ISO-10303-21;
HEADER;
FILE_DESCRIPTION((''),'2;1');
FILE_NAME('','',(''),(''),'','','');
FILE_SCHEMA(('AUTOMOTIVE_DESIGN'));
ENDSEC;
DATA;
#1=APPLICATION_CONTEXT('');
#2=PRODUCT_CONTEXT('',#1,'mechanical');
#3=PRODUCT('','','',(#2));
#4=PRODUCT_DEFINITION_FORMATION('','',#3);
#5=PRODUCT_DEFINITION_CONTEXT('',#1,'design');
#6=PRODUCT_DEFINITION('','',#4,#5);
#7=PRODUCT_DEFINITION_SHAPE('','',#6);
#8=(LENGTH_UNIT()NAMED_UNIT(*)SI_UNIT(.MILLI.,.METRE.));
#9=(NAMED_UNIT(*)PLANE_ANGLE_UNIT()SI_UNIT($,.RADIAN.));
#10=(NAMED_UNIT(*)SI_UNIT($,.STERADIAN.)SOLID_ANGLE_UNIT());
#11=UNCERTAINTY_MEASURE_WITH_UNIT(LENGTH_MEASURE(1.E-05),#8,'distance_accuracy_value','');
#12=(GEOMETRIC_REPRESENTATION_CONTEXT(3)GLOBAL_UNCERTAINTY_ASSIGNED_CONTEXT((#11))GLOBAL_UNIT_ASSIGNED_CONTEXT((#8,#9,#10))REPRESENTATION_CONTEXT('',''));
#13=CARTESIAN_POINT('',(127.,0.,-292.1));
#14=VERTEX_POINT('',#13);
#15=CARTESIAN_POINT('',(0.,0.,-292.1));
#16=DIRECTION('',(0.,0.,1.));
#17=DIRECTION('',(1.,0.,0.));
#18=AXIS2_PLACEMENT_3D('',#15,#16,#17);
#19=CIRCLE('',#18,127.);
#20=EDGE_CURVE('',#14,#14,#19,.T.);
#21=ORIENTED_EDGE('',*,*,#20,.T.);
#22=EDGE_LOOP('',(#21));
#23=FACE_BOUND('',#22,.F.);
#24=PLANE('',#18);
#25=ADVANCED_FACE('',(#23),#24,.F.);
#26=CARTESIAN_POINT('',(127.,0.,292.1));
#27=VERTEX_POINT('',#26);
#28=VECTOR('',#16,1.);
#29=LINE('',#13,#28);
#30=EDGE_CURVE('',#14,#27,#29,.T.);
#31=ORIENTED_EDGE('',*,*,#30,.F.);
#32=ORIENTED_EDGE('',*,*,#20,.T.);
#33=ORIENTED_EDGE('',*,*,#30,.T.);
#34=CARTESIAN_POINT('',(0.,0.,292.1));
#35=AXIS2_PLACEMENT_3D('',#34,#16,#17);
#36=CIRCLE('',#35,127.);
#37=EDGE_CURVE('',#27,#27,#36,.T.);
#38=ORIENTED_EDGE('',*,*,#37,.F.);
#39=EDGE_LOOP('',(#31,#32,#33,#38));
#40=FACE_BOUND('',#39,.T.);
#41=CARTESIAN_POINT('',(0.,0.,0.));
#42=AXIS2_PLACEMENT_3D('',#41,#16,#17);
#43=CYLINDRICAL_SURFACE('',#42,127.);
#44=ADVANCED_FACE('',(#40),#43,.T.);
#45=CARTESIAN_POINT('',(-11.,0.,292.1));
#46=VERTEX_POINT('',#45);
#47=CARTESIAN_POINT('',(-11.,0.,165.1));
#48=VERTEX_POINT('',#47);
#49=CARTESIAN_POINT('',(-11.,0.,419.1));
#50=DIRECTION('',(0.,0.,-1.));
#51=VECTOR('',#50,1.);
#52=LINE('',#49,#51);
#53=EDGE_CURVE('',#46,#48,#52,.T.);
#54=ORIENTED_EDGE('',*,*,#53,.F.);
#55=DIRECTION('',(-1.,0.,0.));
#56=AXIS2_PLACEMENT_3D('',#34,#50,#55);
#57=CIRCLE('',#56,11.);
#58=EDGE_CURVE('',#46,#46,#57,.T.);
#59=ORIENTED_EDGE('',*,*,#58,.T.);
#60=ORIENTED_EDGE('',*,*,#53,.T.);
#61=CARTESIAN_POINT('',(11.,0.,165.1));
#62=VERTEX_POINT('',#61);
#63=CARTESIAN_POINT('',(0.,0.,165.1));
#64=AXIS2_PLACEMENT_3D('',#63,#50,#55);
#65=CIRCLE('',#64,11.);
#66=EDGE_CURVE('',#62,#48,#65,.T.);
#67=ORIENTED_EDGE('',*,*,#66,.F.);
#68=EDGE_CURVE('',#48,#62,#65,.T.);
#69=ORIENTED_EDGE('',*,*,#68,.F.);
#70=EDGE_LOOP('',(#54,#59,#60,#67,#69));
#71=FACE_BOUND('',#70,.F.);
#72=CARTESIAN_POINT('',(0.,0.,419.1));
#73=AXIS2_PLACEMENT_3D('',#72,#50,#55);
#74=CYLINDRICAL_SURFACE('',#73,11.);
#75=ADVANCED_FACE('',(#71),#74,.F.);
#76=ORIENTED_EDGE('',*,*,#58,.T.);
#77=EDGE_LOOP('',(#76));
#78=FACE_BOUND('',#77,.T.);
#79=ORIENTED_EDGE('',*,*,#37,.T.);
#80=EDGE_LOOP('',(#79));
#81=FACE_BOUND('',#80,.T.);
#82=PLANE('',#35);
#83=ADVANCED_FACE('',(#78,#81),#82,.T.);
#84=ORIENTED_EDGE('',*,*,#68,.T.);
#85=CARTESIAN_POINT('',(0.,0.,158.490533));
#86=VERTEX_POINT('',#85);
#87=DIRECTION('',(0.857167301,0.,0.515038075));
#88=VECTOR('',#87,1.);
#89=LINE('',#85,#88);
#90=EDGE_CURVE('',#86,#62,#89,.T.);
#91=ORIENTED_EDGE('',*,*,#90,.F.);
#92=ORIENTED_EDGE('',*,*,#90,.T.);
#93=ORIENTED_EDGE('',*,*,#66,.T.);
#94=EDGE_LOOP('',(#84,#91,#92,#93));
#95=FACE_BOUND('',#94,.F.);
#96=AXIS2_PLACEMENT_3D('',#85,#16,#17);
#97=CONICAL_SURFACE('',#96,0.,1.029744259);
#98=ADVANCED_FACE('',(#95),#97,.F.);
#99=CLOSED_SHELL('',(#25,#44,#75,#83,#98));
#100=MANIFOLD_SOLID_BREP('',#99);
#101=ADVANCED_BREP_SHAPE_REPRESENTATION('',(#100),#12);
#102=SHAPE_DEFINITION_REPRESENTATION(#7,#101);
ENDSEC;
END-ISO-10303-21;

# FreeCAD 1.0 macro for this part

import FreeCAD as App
import Part
import Sketcher
Q = App.Units.Quantity

doc = App.newDocument("Part")
body = doc.addObject("PartDesign::Body", "Body")

# Sketch on XY plane
sketch1 = doc.addObject("Sketcher::SketchObject", "Sketch")
body.addObject(sketch1)
sketch1.AttachmentSupport = (doc.XY_Plane, [""])
sketch1.MapMode = "FlatFace"
sketch1.addGeometry(Part.Circle(App.Vector(0, 0, 0), App.Vector(0, 0, 1), 127), False)
sketch1.addConstraint(Sketcher.Constraint("Coincident", 0, 3, -1, 1))
sketch1.addConstraint(Sketcher.Constraint("Diameter", 0, Q("10 in")))
pad1 = doc.addObject("PartDesign::Pad", "Pad")
body.addObject(pad1)
pad1.Profile = sketch1
pad1.Length = Q("23 in")
pad1.Midplane = True

# Sketch on XY plane
sketch2 = doc.addObject("Sketcher::SketchObject", "Sketch001")
body.addObject(sketch2)
sketch2.AttachmentSupport = (doc.XY_Plane, [""])
sketch2.MapMode = "FlatFace"
sketch2.AttachmentOffset = App.Placement(App.Vector(0, 0, 11.5 * 25.4), App.Rotation())
sketch2.addGeometry(Part.Circle(App.Vector(0, 0, 0), App.Vector(0, 0, 1), 11), False)
sketch2.addConstraint(Sketcher.Constraint("Coincident", 0, 3, -1, 1))
sketch2.addConstraint(Sketcher.Constraint("Diameter", 0, 22.0))
doc.recompute()
hole = doc.addObject("PartDesign::Hole", "Hole")
body.addObject(hole)
hole.Profile = sketch2
hole.ThreadType = "None"
hole.Diameter = 22
hole.DepthType = "Dimension"
hole.Depth = Q("5 in")
hole.DrillPoint = "Angled"
hole.DrillPointAngle = 118

doc.recompute()
